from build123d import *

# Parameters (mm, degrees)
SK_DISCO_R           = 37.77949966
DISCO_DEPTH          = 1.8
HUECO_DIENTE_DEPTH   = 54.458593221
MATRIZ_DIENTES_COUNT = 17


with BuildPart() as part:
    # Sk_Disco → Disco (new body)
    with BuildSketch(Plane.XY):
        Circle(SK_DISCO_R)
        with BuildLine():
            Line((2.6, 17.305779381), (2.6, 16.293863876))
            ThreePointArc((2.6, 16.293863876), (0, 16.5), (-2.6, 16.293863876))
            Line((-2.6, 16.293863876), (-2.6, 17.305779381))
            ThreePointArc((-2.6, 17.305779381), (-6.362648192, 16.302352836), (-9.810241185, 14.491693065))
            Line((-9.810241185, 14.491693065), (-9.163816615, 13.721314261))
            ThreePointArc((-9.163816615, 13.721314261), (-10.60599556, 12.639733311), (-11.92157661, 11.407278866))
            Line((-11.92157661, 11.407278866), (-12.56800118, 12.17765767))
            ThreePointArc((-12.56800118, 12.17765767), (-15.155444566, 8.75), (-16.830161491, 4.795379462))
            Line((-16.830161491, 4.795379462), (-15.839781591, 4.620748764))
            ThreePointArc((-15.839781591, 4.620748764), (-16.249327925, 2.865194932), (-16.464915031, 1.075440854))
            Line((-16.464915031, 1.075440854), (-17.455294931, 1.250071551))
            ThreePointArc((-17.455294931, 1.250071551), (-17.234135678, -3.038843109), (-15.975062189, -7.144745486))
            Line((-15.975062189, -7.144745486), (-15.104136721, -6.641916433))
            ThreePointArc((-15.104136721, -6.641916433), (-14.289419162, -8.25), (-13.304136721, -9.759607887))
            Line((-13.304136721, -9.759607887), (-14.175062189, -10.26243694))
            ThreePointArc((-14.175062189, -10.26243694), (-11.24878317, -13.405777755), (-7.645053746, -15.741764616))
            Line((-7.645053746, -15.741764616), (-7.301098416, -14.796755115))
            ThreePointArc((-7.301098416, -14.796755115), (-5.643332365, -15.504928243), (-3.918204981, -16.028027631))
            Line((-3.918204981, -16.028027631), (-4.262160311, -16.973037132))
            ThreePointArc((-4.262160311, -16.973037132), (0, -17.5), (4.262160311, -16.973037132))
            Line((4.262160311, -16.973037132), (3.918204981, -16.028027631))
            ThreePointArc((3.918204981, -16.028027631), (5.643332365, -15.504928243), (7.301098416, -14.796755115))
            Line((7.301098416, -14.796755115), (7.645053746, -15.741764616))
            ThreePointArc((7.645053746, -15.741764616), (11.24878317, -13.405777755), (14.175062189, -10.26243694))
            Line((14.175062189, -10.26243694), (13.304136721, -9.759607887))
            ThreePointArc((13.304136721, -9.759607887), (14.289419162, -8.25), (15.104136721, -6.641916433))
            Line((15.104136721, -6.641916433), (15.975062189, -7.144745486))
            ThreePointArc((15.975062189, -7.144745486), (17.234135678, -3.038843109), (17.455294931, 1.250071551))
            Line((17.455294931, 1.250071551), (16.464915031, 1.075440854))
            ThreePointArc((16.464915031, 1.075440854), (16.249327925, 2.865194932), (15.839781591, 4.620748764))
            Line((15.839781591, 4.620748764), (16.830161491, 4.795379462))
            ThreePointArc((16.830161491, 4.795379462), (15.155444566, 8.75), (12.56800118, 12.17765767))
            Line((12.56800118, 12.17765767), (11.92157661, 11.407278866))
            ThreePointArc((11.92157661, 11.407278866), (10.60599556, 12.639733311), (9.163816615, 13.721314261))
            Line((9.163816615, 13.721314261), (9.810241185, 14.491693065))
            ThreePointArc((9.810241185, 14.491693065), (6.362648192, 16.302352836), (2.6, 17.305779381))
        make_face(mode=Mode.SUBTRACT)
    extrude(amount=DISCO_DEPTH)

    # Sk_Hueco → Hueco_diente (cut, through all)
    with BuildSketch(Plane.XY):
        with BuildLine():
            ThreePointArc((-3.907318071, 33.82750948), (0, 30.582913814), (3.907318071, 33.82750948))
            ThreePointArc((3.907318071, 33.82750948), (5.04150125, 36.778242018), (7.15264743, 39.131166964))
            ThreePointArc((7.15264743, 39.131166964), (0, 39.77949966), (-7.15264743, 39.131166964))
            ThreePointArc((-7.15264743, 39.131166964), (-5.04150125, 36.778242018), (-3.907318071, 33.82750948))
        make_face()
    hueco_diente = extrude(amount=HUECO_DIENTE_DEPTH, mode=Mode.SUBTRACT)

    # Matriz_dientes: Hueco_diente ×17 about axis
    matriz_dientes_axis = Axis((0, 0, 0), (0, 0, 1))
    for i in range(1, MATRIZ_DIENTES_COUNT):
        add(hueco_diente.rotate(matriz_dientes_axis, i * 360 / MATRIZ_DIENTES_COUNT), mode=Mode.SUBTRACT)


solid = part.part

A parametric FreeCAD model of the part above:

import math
import FreeCAD as App
import Part
import Sketcher
from FreeCAD import Vector
Q = App.Units.Quantity

doc = App.newDocument("Part")
params = doc.addObject("Spreadsheet::Sheet", "Params")
for row, (alias, value) in enumerate([
    ("sketch1_radius", "17.5 mm"),
    ("sketch1_radius2", "16.5 mm"),
    ("pad1_length", "1.8 mm"),
], start=1):
    params.set(f"A{row}", alias)
    params.set(f"B{row}", "=" + value)
    params.setAlias(f"B{row}", alias)

body = doc.addObject("PartDesign::Body", "Body")

sketch1 = body.newObject("Sketcher::SketchObject", "Sketch")
sketch1.AttachmentSupport = (doc.getObject("XY_Plane"), [""])
sketch1.MapMode = "FlatFace"
sketch1.addGeometry([
    Part.Circle(Vector(0, 0, 0), Vector(0, 0, 1), 37.8),
    Part.LineSegment(Vector(2.6, 16.3, 0), Vector(2.6, 17.3, 0)),
    Part.ArcOfCircle(Part.Circle(Vector(0, 0, 0), Vector(0, 0, 1), 17.5), math.radians(56), math.radians(81)),
    Part.LineSegment(Vector(9.8, 14.5, 0), Vector(9.2, 13.7, 0)),
    Part.ArcOfCircle(Part.Circle(Vector(0, 0, 0), Vector(0, 0, 1), 16.5), math.radians(43.74), math.radians(56.26)),
    Part.LineSegment(Vector(11.9, 11.4, 0), Vector(12.6, 12.2, 0)),
    Part.ArcOfCircle(Part.Circle(Vector(0, 0, 0), Vector(0, 0, 1), 17.5), math.radians(16), math.radians(44)),
    Part.LineSegment(Vector(16.8, 4.8, 0), Vector(15.8, 4.6, 0)),
    Part.ArcOfCircle(Part.Circle(Vector(0, 0, 0), Vector(0, 0, 1), 16.5), math.radians(3.74), math.radians(16.26)),
    Part.LineSegment(Vector(16.5, 1.1, 0), Vector(17.5, 1.3, 0)),
    Part.ArcOfCircle(Part.Circle(Vector(0, 0, 0), Vector(0, 0, 1), 17.5), math.radians(-24), math.radians(4)),
    Part.LineSegment(Vector(16, -7.1, 0), Vector(15.1, -6.6, 0)),
    Part.ArcOfCircle(Part.Circle(Vector(0, 0, 0), Vector(0, 0, 1), 16.5), math.radians(-36.26), math.radians(-23.74)),
    Part.LineSegment(Vector(13.3, -9.8, 0), Vector(14.2, -10.3, 0)),
    Part.ArcOfCircle(Part.Circle(Vector(0, 0, 0), Vector(0, 0, 1), 17.5), math.radians(-64), math.radians(-36)),
    Part.LineSegment(Vector(7.6, -15.7, 0), Vector(7.3, -14.8, 0)),
    Part.ArcOfCircle(Part.Circle(Vector(0, 0, 0), Vector(0, 0, 1), 16.5), math.radians(-76.26), math.radians(-63.74)),
    Part.LineSegment(Vector(3.9, -16, 0), Vector(4.3, -17, 0)),
    Part.ArcOfCircle(Part.Circle(Vector(0, 0, 0), Vector(0, 0, 1), 17.5), math.radians(-104), math.radians(-76)),
    Part.LineSegment(Vector(-4.3, -17, 0), Vector(-3.9, -16, 0)),
    Part.ArcOfCircle(Part.Circle(Vector(0, 0, 0), Vector(0, 0, 1), 16.5), math.radians(-116.26), math.radians(-103.74)),
    Part.LineSegment(Vector(-7.3, -14.8, 0), Vector(-7.6, -15.7, 0)),
    Part.ArcOfCircle(Part.Circle(Vector(0, 0, 0), Vector(0, 0, 1), 17.5), math.radians(-144), math.radians(-116)),
    Part.LineSegment(Vector(-14.2, -10.3, 0), Vector(-13.3, -9.8, 0)),
    Part.ArcOfCircle(Part.Circle(Vector(0, 0, 0), Vector(0, 0, 1), 16.5), math.radians(-156.26), math.radians(-143.74)),
    Part.LineSegment(Vector(-15.1, -6.6, 0), Vector(-16, -7.1, 0)),
    Part.ArcOfCircle(Part.Circle(Vector(0, 0, 0), Vector(0, 0, 1), 17.5), math.radians(176), math.radians(204)),
    Part.LineSegment(Vector(-17.5, 1.3, 0), Vector(-16.5, 1.1, 0)),
    Part.ArcOfCircle(Part.Circle(Vector(0, 0, 0), Vector(0, 0, 1), 16.5), math.radians(163.74), math.radians(176.26)),
    Part.LineSegment(Vector(-15.8, 4.6, 0), Vector(-16.8, 4.8, 0)),
    Part.ArcOfCircle(Part.Circle(Vector(0, 0, 0), Vector(0, 0, 1), 17.5), math.radians(136), math.radians(164)),
    Part.LineSegment(Vector(-12.6, 12.2, 0), Vector(-11.9, 11.4, 0)),
    Part.ArcOfCircle(Part.Circle(Vector(0, 0, 0), Vector(0, 0, 1), 16.5), math.radians(123.74), math.radians(136.26)),
    Part.LineSegment(Vector(-9.2, 13.7, 0), Vector(-9.8, 14.5, 0)),
    Part.ArcOfCircle(Part.Circle(Vector(0, 0, 0), Vector(0, 0, 1), 17.5), math.radians(99), math.radians(124)),
    Part.LineSegment(Vector(-2.6, 17.3, 0), Vector(-2.6, 16.3, 0)),
    Part.ArcOfCircle(Part.Circle(Vector(0, 0, 0), Vector(0, 0, 1), 16.5), math.radians(80.93), math.radians(99.07)),
], False)
sketch1.addConstraint([
    Sketcher.Constraint("Coincident", 1, 2, 2, 2),
    Sketcher.Constraint("Coincident", 2, 1, 3, 1),
    Sketcher.Constraint("Coincident", 3, 2, 4, 2),
    Sketcher.Constraint("Coincident", 4, 1, 5, 1),
    Sketcher.Constraint("Coincident", 5, 2, 6, 2),
    Sketcher.Constraint("Coincident", 6, 1, 7, 1),
    Sketcher.Constraint("Coincident", 7, 2, 8, 2),
    Sketcher.Constraint("Coincident", 8, 1, 9, 1),
    Sketcher.Constraint("Coincident", 9, 2, 10, 2),
    Sketcher.Constraint("Coincident", 10, 1, 11, 1),
    Sketcher.Constraint("Coincident", 11, 2, 12, 2),
    Sketcher.Constraint("Coincident", 12, 1, 13, 1),
    Sketcher.Constraint("Coincident", 13, 2, 14, 2),
    Sketcher.Constraint("Coincident", 14, 1, 15, 1),
    Sketcher.Constraint("Coincident", 15, 2, 16, 2),
    Sketcher.Constraint("Coincident", 16, 1, 17, 1),
    Sketcher.Constraint("Coincident", 17, 2, 18, 2),
    Sketcher.Constraint("Coincident", 18, 1, 19, 1),
    Sketcher.Constraint("Coincident", 19, 2, 20, 2),
    Sketcher.Constraint("Coincident", 20, 1, 21, 1),
    Sketcher.Constraint("Coincident", 21, 2, 22, 2),
    Sketcher.Constraint("Coincident", 22, 1, 23, 1),
    Sketcher.Constraint("Coincident", 23, 2, 24, 2),
    Sketcher.Constraint("Coincident", 24, 1, 25, 1),
    Sketcher.Constraint("Coincident", 25, 2, 26, 2),
    Sketcher.Constraint("Coincident", 26, 1, 27, 1),
    Sketcher.Constraint("Coincident", 27, 2, 28, 2),
    Sketcher.Constraint("Coincident", 28, 1, 29, 1),
    Sketcher.Constraint("Coincident", 29, 2, 30, 2),
    Sketcher.Constraint("Coincident", 30, 1, 31, 1),
    Sketcher.Constraint("Coincident", 31, 2, 32, 2),
    Sketcher.Constraint("Coincident", 32, 1, 33, 1),
    Sketcher.Constraint("Coincident", 33, 2, 34, 2),
    Sketcher.Constraint("Coincident", 34, 1, 35, 1),
    Sketcher.Constraint("Coincident", 35, 2, 36, 2),
    Sketcher.Constraint("Coincident", 36, 1, 1, 1),
    Sketcher.Constraint("Vertical", 1),
    Sketcher.Constraint("Vertical", 35),
    Sketcher.Constraint("Coincident", 0, 3, -1, 1),
    Sketcher.Constraint("Coincident", 2, 3, -1, 1),
    Sketcher.Constraint("Coincident", 4, 3, -1, 1),
    Sketcher.Constraint("Coincident", 6, 3, -1, 1),
    Sketcher.Constraint("Coincident", 8, 3, -1, 1),
    Sketcher.Constraint("Coincident", 10, 3, -1, 1),
    Sketcher.Constraint("Coincident", 12, 3, -1, 1),
    Sketcher.Constraint("Coincident", 14, 3, -1, 1),
    Sketcher.Constraint("Coincident", 16, 3, -1, 1),
    Sketcher.Constraint("Coincident", 18, 3, -1, 1),
    Sketcher.Constraint("Coincident", 20, 3, -1, 1),
    Sketcher.Constraint("Coincident", 22, 3, -1, 1),
    Sketcher.Constraint("Coincident", 24, 3, -1, 1),
    Sketcher.Constraint("Coincident", 26, 3, -1, 1),
    Sketcher.Constraint("Coincident", 28, 3, -1, 1),
    Sketcher.Constraint("Coincident", 30, 3, -1, 1),
    Sketcher.Constraint("Coincident", 32, 3, -1, 1),
    Sketcher.Constraint("Coincident", 34, 3, -1, 1),
    Sketcher.Constraint("Coincident", 36, 3, -1, 1),
    Sketcher.Constraint("Equal", 2, 6),
    Sketcher.Constraint("Equal", 4, 8),
    Sketcher.Constraint("Equal", 6, 10),
    Sketcher.Constraint("Equal", 8, 12),
    Sketcher.Constraint("Equal", 10, 14),
    Sketcher.Constraint("Equal", 12, 16),
    Sketcher.Constraint("Equal", 14, 18),
    Sketcher.Constraint("Equal", 16, 20),
    Sketcher.Constraint("Equal", 18, 22),
    Sketcher.Constraint("Equal", 20, 24),
    Sketcher.Constraint("Equal", 22, 26),
    Sketcher.Constraint("Equal", 24, 28),
    Sketcher.Constraint("Equal", 26, 30),
    Sketcher.Constraint("Equal", 28, 32),
    Sketcher.Constraint("Equal", 30, 34),
    Sketcher.Constraint("Equal", 32, 36),
    Sketcher.Constraint("Parallel", 3, 5),
    Sketcher.Constraint("Parallel", 7, 9),
    Sketcher.Constraint("Parallel", 11, 13),
    Sketcher.Constraint("Parallel", 15, 17),
    Sketcher.Constraint("Parallel", 19, 21),
    Sketcher.Constraint("Parallel", 23, 25),
    Sketcher.Constraint("Parallel", 27, 29),
    Sketcher.Constraint("Parallel", 31, 33),
    Sketcher.Constraint("Horizontal", 17, 2, 18, 1),
    Sketcher.Constraint("Horizontal", 16, 1, 19, 2),
    Sketcher.Constraint("Horizontal", 15, 2, 20, 1),
    Sketcher.Constraint("Horizontal", 13, 2, 22, 1),
    Sketcher.Constraint("Horizontal", 12, 1, 23, 2),
    Sketcher.Constraint("Horizontal", 11, 2, 24, 1),
    Sketcher.Constraint("Horizontal", 9, 2, 26, 1),
    Sketcher.Constraint("Horizontal", 8, 1, 27, 2),
    Sketcher.Constraint("Horizontal", 7, 2, 28, 1),
    Sketcher.Constraint("Horizontal", 5, 2, 30, 1),
    Sketcher.Constraint("Horizontal", 4, 1, 31, 2),
    Sketcher.Constraint("Horizontal", 3, 2, 32, 1),
    Sketcher.Constraint("Horizontal", 1, 2, 34, 1),
    Sketcher.Constraint("Equal", 3, 5),
    Sketcher.Constraint("Equal", 5, 7),
    Sketcher.Constraint("Equal", 7, 9),
    Sketcher.Constraint("Equal", 9, 11),
    Sketcher.Constraint("Equal", 11, 13),
    Sketcher.Constraint("Equal", 13, 15),
    Sketcher.Constraint("Equal", 15, 17),
    Sketcher.Constraint("Radius", 2, Q("17.5 mm")),
    Sketcher.Constraint("Radius", 4, Q("16.5 mm")),
    Sketcher.Constraint("Angle", 3, Q("-130 deg")),
    Sketcher.Constraint("Angle", 7, Q("-170 deg")),
    Sketcher.Constraint("Angle", 11, Q("150 deg")),
    Sketcher.Constraint("Angle", 15, Q("110 deg")),
    Sketcher.Constraint("Diameter", 0, Q("75.558999 mm")),
    Sketcher.Constraint("DistanceX", -1, 1, 1, 2, Q("2.6 mm")),
    Sketcher.Constraint("DistanceX", 12, 1, 11, 2, Q("1.8 mm")),
])
sketch1.setExpression("Constraints[101]", "Params.sketch1_radius")
sketch1.setExpression("Constraints[102]", "Params.sketch1_radius2")
pad1 = body.newObject("PartDesign::Pad", "Pad")
pad1.Profile = sketch1
pad1.setExpression("Length", "Params.pad1_length")

sketch2 = body.newObject("Sketcher::SketchObject", "Sketch001")
sketch2.AttachmentSupport = (doc.getObject("XY_Plane"), [""])
sketch2.MapMode = "FlatFace"
sketch2.addGeometry([
    Part.ArcOfCircle(Part.Circle(Vector(0, 34.6, 0), Vector(0, 0, 1), 4), math.radians(-169), math.radians(-11)),
    Part.ArcOfCircle(Part.Circle(Vector(12.5, 32.2, 0), Vector(0, 0, 1), 8.7), math.radians(128), math.radians(169)),
    Part.ArcOfCircle(Part.Circle(Vector(0, 0, 0), Vector(0, 0, 1), 39.8), math.radians(80), math.radians(100)),
    Part.ArcOfCircle(Part.Circle(Vector(-12.5, 32.2, 0), Vector(0, 0, 1), 8.7), math.radians(11), math.radians(52)),
], False)
sketch2.addConstraint([
    Sketcher.Constraint("Tangent", 0, 2, 1, 2),
    Sketcher.Constraint("Coincident", 1, 1, 2, 1),
    Sketcher.Constraint("Coincident", 2, 2, 3, 2),
    Sketcher.Constraint("Tangent", 3, 1, 0, 1),
    Sketcher.Constraint("Coincident", 2, 3, -1, 1),
    Sketcher.Constraint("Equal", 1, 3),
    Sketcher.Constraint("Symmetric", 1, 3, 3, 3, -2),
    Sketcher.Constraint("Radius", 0, Q("3.975 mm")),
    Sketcher.Constraint("Radius", 1, Q("8.725 mm")),
    Sketcher.Constraint("Radius", 2, Q("39.7795 mm")),
    Sketcher.Constraint("DistanceX", -1, 1, 1, 3, Q("12.483758 mm")),
    Sketcher.Constraint("DistanceY", -1, 1, 0, 2, Q("33.827509 mm")),
])
pocket1 = body.newObject("PartDesign::Pocket", "Pocket")
pocket1.Profile = sketch2
pocket1.Type = "ThroughAll"
pocket1.Reversed = True
doc.recompute()

polarpattern = body.newObject("PartDesign::PolarPattern", "PolarPattern")
polarpattern.Originals = [pocket1]
polarpattern.Axis = (doc.getObject("Z_Axis"), [""])
polarpattern.Angle = 360
polarpattern.Occurrences = 17
body.Tip = polarpattern

doc.recompute()
